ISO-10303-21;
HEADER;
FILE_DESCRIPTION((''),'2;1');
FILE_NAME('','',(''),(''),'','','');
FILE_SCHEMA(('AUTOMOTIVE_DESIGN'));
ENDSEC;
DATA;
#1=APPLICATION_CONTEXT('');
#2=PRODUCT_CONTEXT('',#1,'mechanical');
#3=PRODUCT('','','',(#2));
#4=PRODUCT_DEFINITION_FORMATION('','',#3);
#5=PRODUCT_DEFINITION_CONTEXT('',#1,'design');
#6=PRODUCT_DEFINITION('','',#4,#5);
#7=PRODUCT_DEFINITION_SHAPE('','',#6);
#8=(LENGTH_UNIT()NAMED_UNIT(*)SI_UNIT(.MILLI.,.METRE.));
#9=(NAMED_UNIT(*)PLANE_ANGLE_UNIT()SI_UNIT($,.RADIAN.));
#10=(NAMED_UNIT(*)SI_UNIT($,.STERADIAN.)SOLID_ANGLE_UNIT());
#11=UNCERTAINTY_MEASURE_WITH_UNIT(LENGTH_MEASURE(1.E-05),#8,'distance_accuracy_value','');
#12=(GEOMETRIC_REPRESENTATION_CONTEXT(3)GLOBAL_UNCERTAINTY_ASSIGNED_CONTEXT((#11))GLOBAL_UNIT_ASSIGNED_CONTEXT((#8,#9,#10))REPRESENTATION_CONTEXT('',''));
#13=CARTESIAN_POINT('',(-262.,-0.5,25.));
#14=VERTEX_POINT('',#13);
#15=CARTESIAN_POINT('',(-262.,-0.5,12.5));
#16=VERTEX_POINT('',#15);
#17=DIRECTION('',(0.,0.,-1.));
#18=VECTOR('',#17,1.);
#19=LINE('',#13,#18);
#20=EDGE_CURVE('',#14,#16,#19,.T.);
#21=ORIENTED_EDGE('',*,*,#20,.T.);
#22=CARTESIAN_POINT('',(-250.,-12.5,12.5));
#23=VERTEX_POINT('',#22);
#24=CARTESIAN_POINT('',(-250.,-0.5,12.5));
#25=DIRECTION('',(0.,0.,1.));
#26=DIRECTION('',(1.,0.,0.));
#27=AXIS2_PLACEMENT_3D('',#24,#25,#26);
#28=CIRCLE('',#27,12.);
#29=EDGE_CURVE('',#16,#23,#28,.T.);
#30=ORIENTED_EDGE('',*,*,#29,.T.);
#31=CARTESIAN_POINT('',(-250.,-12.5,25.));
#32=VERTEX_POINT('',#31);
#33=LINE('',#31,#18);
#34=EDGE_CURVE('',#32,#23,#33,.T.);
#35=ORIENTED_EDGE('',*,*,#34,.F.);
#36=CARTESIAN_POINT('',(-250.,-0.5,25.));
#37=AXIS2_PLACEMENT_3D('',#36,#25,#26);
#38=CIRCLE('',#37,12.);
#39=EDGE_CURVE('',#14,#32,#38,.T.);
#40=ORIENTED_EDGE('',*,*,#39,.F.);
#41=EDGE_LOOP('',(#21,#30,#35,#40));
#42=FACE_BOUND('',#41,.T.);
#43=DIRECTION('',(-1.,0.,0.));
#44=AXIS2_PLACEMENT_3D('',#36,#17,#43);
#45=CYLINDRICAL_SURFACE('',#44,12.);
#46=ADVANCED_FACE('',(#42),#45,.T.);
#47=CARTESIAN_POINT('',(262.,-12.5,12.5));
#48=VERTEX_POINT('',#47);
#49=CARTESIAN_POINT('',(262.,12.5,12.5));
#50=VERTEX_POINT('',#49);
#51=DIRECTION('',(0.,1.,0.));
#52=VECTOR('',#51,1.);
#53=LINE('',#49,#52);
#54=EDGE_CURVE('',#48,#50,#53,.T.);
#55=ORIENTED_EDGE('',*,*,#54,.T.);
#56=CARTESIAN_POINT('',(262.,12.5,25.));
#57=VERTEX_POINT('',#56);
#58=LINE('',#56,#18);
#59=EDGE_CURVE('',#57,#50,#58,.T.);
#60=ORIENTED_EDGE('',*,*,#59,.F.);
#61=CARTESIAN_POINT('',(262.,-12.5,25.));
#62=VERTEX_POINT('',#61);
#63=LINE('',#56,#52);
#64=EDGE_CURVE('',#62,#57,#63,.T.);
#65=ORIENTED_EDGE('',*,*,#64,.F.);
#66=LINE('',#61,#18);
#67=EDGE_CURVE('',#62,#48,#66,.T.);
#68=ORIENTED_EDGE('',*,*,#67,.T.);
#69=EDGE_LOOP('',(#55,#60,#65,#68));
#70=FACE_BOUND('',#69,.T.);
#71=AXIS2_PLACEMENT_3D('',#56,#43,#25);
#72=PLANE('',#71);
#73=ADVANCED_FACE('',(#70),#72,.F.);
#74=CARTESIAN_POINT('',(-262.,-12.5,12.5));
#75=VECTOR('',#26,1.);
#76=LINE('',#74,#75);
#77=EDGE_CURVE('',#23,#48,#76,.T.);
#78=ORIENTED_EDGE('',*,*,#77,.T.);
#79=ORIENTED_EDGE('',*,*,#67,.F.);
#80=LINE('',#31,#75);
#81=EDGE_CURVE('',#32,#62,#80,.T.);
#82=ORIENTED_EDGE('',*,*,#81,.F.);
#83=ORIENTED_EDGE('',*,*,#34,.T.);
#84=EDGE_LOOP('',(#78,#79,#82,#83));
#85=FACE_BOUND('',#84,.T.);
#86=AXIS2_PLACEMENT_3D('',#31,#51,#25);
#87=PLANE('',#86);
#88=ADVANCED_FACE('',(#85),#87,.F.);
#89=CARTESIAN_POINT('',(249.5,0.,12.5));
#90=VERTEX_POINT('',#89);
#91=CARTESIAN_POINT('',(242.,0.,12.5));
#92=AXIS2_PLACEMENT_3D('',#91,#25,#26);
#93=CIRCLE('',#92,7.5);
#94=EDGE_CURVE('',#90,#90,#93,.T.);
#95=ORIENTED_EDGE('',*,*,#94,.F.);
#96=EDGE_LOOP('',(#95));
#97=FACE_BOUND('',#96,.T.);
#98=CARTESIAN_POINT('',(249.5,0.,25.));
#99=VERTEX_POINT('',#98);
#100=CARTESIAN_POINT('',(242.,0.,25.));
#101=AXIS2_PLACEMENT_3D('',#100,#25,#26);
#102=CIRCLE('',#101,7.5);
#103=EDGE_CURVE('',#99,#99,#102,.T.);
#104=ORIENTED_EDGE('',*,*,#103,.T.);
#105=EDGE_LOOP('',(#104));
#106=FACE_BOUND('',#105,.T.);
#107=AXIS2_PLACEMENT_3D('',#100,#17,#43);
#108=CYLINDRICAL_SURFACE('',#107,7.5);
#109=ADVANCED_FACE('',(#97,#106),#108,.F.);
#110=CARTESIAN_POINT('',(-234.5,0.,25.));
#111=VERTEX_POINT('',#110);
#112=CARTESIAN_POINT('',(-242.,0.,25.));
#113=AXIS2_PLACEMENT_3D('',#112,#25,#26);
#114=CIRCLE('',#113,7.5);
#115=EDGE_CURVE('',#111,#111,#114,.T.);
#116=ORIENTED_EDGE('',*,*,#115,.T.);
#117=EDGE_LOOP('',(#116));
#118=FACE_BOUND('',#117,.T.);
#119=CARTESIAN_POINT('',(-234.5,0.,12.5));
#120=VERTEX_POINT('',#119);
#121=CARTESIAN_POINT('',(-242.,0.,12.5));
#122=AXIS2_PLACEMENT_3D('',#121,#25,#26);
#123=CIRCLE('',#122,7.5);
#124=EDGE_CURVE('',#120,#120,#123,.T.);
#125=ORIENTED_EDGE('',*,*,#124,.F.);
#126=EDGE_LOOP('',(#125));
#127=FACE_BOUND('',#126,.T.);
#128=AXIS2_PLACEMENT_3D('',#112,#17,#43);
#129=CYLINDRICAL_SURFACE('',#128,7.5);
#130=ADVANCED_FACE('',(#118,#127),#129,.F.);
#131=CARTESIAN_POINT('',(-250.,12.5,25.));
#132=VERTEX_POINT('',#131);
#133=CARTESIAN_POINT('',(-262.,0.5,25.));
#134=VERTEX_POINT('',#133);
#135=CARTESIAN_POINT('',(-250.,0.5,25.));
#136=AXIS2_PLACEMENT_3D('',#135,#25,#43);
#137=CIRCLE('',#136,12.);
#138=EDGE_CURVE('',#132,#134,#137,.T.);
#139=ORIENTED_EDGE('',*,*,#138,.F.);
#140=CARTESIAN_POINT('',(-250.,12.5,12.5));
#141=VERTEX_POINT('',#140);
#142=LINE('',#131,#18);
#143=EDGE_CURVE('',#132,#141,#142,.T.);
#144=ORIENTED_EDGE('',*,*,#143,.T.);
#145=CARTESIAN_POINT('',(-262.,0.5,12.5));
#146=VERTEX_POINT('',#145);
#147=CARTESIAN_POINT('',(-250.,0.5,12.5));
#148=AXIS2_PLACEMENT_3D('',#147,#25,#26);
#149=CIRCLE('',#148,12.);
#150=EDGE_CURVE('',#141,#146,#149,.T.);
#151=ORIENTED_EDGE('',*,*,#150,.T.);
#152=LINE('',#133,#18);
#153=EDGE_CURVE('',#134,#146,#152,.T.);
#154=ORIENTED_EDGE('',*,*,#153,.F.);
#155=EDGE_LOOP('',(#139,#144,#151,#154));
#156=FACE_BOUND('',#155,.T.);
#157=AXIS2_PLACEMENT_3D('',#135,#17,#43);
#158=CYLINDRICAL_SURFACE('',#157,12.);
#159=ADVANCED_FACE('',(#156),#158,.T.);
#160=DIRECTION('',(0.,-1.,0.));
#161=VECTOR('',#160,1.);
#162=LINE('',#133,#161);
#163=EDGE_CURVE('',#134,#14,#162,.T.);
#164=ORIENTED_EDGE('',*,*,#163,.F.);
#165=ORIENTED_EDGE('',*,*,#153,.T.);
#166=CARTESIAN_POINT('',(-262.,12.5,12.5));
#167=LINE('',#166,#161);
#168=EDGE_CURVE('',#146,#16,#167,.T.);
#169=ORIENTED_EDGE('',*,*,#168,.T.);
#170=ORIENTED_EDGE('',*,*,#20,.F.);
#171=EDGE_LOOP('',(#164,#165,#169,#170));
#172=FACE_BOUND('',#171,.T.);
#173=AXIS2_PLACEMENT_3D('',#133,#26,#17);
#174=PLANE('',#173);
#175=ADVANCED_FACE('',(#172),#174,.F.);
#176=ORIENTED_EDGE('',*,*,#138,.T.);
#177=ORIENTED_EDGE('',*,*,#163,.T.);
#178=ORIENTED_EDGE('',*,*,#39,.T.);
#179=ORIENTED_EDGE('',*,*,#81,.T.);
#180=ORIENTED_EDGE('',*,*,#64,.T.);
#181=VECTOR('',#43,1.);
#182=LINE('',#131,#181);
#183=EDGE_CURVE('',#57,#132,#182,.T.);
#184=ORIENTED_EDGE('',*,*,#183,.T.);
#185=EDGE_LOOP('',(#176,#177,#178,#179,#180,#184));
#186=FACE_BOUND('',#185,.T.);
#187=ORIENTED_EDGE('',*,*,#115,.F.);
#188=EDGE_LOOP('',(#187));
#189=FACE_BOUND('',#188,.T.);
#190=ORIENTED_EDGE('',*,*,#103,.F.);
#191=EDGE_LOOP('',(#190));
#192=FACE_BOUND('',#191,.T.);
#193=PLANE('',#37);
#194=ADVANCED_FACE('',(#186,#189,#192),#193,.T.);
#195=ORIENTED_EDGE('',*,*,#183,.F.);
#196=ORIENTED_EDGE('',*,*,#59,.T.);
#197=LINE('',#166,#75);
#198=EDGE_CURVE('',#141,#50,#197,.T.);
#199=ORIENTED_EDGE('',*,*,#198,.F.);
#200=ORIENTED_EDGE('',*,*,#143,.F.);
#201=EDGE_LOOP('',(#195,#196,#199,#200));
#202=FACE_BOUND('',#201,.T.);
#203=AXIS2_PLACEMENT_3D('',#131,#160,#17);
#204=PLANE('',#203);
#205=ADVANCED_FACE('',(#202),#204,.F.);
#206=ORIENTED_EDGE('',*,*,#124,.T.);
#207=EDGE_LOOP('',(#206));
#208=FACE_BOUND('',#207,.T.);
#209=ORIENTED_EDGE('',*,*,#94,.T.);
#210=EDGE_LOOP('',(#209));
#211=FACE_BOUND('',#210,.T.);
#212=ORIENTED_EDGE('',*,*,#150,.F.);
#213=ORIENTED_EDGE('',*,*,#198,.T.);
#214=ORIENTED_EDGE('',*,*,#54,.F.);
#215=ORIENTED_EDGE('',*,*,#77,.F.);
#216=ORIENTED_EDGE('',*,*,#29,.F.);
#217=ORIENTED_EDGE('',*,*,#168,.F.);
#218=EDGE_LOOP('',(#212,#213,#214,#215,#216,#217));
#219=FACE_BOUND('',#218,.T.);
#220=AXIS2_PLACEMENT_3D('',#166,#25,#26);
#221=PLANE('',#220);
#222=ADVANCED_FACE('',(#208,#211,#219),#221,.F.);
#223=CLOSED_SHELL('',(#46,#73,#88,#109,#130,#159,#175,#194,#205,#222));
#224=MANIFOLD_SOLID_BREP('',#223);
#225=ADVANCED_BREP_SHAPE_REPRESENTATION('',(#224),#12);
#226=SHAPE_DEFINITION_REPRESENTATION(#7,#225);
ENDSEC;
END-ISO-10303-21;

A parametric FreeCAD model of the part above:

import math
import FreeCAD as App
import Part
import Sketcher

V = App.Vector

doc = App.newDocument("Part")
body = doc.addObject("PartDesign::Body", "Body")

# Sketch on XY plane
sketch1 = body.newObject("Sketcher::SketchObject", "Sketch")
sketch1.AttachmentSupport = (doc.getObject("XY_Plane"), [""])
sketch1.MapMode = "FlatFace"
sketch1.addGeometry([
    Part.LineSegment(V(262, 12.5, 0), V(-250, 12.5, 0)),  # 0
    Part.ArcOfCircle(Part.Circle(V(-250, 0.5, 0), V(0, 0, 1), 12), math.radians(90), math.radians(180)),  # 1
    Part.LineSegment(V(-262, 0.5, 0), V(-262, -0.5, 0)),  # 2
    Part.ArcOfCircle(Part.Circle(V(-250, -0.5, 0), V(0, 0, 1), 12), math.radians(-180), math.radians(-90)),  # 3
    Part.LineSegment(V(-250, -12.5, 0), V(262, -12.5, 0)),  # 4
    Part.LineSegment(V(262, -12.5, 0), V(262, 12.5, 0)),  # 5
    Part.Circle(V(242, 0, 0), V(0, 0, 1), 7.5),  # 6
    Part.Circle(V(-242, 0, 0), V(0, 0, 1), 7.5),  # 7
], False)
sketch1.addConstraint([
    Sketcher.Constraint("Tangent", 0, 2, 1, 1),
    Sketcher.Constraint("Tangent", 1, 2, 2, 1),
    Sketcher.Constraint("Tangent", 2, 2, 3, 1),
    Sketcher.Constraint("Tangent", 3, 2, 4, 1),
    Sketcher.Constraint("Coincident", 4, 2, 5, 1),
    Sketcher.Constraint("Coincident", 5, 2, 0, 1),
    Sketcher.Constraint("Horizontal", 0),
    Sketcher.Constraint("Vertical", 2),
    Sketcher.Constraint("Horizontal", 4),
    Sketcher.Constraint("Vertical", 5),
    Sketcher.Constraint("Equal", 1, 3),
    Sketcher.Constraint("Equal", 6, 7),
    Sketcher.Constraint("Symmetric", 6, 3, 7, 3, -1, 1),
    Sketcher.Constraint("PointOnObject", 6, 3, -1),
    Sketcher.Constraint("Diameter", 6, 15.0),
    Sketcher.Constraint("Radius", 1, 12.0),
    Sketcher.Constraint("DistanceX", 0, 2, 0, 1, 512.0),
    Sketcher.Constraint("DistanceY", 2, 2, 2, 1, 1.0),
    Sketcher.Constraint("DistanceX", 1, 3, -1, 1, 250.0),
    Sketcher.Constraint("DistanceX", -1, 1, 6, 3, 242.0),
    Sketcher.Constraint("DistanceY", -1, 1, 1, 3, 0.5),
])
pad1 = body.newObject("PartDesign::Pad", "Pad")
pad1.Profile = sketch1
pad1.Length = 25

# Sketch on YZ plane
sketch2 = body.newObject("Sketcher::SketchObject", "Sketch001")
sketch2.AttachmentSupport = (doc.getObject("YZ_Plane"), [""])
sketch2.MapMode = "FlatFace"
sketch2.AttachmentOffset = App.Placement(V(0, 0, 262), App.Rotation())
sketch2.addGeometry([
    Part.LineSegment(V(12, 12, 0), V(-12, 12, 0)),
    Part.LineSegment(V(-12, 12, 0), V(-12, 0, 0)),
    Part.LineSegment(V(-12, 0, 0), V(12, 0, 0)),
    Part.LineSegment(V(12, 0, 0), V(12, 12, 0)),
], False)
sketch2.addConstraint([
    Sketcher.Constraint("Coincident", 0, 2, 1, 1),
    Sketcher.Constraint("Coincident", 1, 2, 2, 1),
    Sketcher.Constraint("Coincident", 2, 2, 3, 1),
    Sketcher.Constraint("Coincident", 3, 2, 0, 1),
    Sketcher.Constraint("Horizontal", 0),
    Sketcher.Constraint("Vertical", 1),
    Sketcher.Constraint("Horizontal", 2),
    Sketcher.Constraint("Vertical", 3),
    Sketcher.Constraint("Symmetric", 1, 2, 2, 2, -1, 1),
    Sketcher.Constraint("DistanceX", 0, 2, 0, 1, 25.0),
    Sketcher.Constraint("DistanceY", 1, 2, 1, 1, 12.5),
])
pocket1 = body.newObject("PartDesign::Pocket", "Pocket")
pocket1.Profile = sketch2
pocket1.Type = "ThroughAll"
pocket1.Midplane = True

doc.recompute()
